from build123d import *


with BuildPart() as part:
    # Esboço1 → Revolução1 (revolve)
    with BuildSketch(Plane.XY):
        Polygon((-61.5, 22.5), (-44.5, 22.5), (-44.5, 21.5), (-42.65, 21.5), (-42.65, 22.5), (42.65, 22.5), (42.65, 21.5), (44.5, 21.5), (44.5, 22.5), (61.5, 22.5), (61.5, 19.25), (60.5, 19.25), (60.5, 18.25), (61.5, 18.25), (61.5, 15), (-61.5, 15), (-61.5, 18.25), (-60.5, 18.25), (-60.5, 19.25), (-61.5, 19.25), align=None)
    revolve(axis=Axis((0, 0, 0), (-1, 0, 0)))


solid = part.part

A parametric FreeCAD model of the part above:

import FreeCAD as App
import Part
import Sketcher

V = App.Vector


def add_polygon(sketch, points):
    """Adds a closed chain of lines whose ends are joined by coincident constraints."""
    first, n = sketch.GeometryCount, len(points)
    for a, b in zip(points, points[1:] + points[:1]):
        sketch.addGeometry(Part.LineSegment(App.Vector(*a, 0), App.Vector(*b, 0)), False)
    for i in range(n):
        sketch.addConstraint(Sketcher.Constraint("Coincident", first + i, 2, first + (i + 1) % n, 1))

doc = App.newDocument("Part")
params = doc.addObject("Spreadsheet::Sheet", "Params")
for row, (alias, value) in enumerate([
    ("sketch1_width", "17 mm"),
    ("sketch1_width2", "1 mm"),
    ("sketch1_width3", "123 mm"),
    ("sketch1_width4", "85.3 mm"),
    ("sketch1_height", "3.25 mm"),
    ("revolution_angle", "360 deg"),
], start=1):
    params.set(f"A{row}", alias)
    params.set(f"B{row}", "=" + value)
    params.setAlias(f"B{row}", alias)

body = doc.addObject("PartDesign::Body", "Body")

# Sketch on XY plane
sketch1 = body.newObject("Sketcher::SketchObject", "Sketch")
sketch1.AttachmentSupport = (doc.getObject("XY_Plane"), [""])
sketch1.MapMode = "FlatFace"
add_polygon(sketch1, [(-44.5, 22.5), (-61.5, 22.5), (-61.5, 19.2), (-60.5, 19.2), (-60.5, 18.2), (-61.5, 18.2), (-61.5, 15), (61.5, 15), (61.5, 18.2), (60.5, 18.2), (60.5, 19.2), (61.5, 19.2), (61.5, 22.5), (44.5, 22.5), (44.5, 21.5), (42.6, 21.5), (42.6, 22.5), (-42.6, 22.5), (-42.6, 21.5), (-44.5, 21.5)])  # lines 0-19
sketch1.addConstraint([
    Sketcher.Constraint("Horizontal", 0),
    Sketcher.Constraint("Vertical", 1),
    Sketcher.Constraint("Horizontal", 2),
    Sketcher.Constraint("Vertical", 3),
    Sketcher.Constraint("Horizontal", 4),
    Sketcher.Constraint("Vertical", 5),
    Sketcher.Constraint("Horizontal", 6),
    Sketcher.Constraint("Vertical", 7),
    Sketcher.Constraint("Horizontal", 8),
    Sketcher.Constraint("Vertical", 9),
    Sketcher.Constraint("Horizontal", 10),
    Sketcher.Constraint("Vertical", 11),
    Sketcher.Constraint("Horizontal", 12),
    Sketcher.Constraint("Vertical", 13),
    Sketcher.Constraint("Horizontal", 14),
    Sketcher.Constraint("Vertical", 15),
    Sketcher.Constraint("Horizontal", 16),
    Sketcher.Constraint("Vertical", 17),
    Sketcher.Constraint("Horizontal", 18),
    Sketcher.Constraint("Vertical", 19),
    Sketcher.Constraint("Symmetric", 4, 2, 7, 2, -2),
    Sketcher.Constraint("Symmetric", 2, 2, 9, 2, -2),
    Sketcher.Constraint("Symmetric", 0, 2, 11, 2, -2),
    Sketcher.Constraint("Symmetric", 14, 2, 17, 2, -2),
    Sketcher.Constraint("Horizontal", 12, 2, 15, 2),
    Sketcher.Constraint("Vertical", 1, 2, 4, 2),
    Sketcher.Constraint("Equal", 0, 12),
    Sketcher.Constraint("Equal", 10, 3),
    Sketcher.Constraint("Equal", 1, 5),
    Sketcher.Constraint("Equal", 9, 13),
    Sketcher.Constraint("DistanceX", 0, 2, 0, 1, 17.0),
    Sketcher.Constraint("DistanceX", 2, 1, 2, 2, 1.0),
    Sketcher.Constraint("DistanceX", 6, 1, 6, 2, 123.0),
    Sketcher.Constraint("DistanceX", 16, 2, 16, 1, 85.3),
    Sketcher.Constraint("DistanceY", -1, 1, 5, 2, 15.0),
    Sketcher.Constraint("DistanceY", 1, 2, 1, 1, 3.25),
])
sketch1.setExpression("Constraints[50]", "Params.sketch1_width")
sketch1.setExpression("Constraints[51]", "Params.sketch1_width2")
sketch1.setExpression("Constraints[52]", "Params.sketch1_width3")
sketch1.setExpression("Constraints[53]", "Params.sketch1_width4")
sketch1.setExpression("Constraints[55]", "Params.sketch1_height")
revolution = body.newObject("PartDesign::Revolution", "Revolution")
revolution.Profile = sketch1
revolution.ReferenceAxis = (sketch1, ["H_Axis"])
revolution.setExpression("Angle", "Params.revolution_angle")

doc.recompute()
